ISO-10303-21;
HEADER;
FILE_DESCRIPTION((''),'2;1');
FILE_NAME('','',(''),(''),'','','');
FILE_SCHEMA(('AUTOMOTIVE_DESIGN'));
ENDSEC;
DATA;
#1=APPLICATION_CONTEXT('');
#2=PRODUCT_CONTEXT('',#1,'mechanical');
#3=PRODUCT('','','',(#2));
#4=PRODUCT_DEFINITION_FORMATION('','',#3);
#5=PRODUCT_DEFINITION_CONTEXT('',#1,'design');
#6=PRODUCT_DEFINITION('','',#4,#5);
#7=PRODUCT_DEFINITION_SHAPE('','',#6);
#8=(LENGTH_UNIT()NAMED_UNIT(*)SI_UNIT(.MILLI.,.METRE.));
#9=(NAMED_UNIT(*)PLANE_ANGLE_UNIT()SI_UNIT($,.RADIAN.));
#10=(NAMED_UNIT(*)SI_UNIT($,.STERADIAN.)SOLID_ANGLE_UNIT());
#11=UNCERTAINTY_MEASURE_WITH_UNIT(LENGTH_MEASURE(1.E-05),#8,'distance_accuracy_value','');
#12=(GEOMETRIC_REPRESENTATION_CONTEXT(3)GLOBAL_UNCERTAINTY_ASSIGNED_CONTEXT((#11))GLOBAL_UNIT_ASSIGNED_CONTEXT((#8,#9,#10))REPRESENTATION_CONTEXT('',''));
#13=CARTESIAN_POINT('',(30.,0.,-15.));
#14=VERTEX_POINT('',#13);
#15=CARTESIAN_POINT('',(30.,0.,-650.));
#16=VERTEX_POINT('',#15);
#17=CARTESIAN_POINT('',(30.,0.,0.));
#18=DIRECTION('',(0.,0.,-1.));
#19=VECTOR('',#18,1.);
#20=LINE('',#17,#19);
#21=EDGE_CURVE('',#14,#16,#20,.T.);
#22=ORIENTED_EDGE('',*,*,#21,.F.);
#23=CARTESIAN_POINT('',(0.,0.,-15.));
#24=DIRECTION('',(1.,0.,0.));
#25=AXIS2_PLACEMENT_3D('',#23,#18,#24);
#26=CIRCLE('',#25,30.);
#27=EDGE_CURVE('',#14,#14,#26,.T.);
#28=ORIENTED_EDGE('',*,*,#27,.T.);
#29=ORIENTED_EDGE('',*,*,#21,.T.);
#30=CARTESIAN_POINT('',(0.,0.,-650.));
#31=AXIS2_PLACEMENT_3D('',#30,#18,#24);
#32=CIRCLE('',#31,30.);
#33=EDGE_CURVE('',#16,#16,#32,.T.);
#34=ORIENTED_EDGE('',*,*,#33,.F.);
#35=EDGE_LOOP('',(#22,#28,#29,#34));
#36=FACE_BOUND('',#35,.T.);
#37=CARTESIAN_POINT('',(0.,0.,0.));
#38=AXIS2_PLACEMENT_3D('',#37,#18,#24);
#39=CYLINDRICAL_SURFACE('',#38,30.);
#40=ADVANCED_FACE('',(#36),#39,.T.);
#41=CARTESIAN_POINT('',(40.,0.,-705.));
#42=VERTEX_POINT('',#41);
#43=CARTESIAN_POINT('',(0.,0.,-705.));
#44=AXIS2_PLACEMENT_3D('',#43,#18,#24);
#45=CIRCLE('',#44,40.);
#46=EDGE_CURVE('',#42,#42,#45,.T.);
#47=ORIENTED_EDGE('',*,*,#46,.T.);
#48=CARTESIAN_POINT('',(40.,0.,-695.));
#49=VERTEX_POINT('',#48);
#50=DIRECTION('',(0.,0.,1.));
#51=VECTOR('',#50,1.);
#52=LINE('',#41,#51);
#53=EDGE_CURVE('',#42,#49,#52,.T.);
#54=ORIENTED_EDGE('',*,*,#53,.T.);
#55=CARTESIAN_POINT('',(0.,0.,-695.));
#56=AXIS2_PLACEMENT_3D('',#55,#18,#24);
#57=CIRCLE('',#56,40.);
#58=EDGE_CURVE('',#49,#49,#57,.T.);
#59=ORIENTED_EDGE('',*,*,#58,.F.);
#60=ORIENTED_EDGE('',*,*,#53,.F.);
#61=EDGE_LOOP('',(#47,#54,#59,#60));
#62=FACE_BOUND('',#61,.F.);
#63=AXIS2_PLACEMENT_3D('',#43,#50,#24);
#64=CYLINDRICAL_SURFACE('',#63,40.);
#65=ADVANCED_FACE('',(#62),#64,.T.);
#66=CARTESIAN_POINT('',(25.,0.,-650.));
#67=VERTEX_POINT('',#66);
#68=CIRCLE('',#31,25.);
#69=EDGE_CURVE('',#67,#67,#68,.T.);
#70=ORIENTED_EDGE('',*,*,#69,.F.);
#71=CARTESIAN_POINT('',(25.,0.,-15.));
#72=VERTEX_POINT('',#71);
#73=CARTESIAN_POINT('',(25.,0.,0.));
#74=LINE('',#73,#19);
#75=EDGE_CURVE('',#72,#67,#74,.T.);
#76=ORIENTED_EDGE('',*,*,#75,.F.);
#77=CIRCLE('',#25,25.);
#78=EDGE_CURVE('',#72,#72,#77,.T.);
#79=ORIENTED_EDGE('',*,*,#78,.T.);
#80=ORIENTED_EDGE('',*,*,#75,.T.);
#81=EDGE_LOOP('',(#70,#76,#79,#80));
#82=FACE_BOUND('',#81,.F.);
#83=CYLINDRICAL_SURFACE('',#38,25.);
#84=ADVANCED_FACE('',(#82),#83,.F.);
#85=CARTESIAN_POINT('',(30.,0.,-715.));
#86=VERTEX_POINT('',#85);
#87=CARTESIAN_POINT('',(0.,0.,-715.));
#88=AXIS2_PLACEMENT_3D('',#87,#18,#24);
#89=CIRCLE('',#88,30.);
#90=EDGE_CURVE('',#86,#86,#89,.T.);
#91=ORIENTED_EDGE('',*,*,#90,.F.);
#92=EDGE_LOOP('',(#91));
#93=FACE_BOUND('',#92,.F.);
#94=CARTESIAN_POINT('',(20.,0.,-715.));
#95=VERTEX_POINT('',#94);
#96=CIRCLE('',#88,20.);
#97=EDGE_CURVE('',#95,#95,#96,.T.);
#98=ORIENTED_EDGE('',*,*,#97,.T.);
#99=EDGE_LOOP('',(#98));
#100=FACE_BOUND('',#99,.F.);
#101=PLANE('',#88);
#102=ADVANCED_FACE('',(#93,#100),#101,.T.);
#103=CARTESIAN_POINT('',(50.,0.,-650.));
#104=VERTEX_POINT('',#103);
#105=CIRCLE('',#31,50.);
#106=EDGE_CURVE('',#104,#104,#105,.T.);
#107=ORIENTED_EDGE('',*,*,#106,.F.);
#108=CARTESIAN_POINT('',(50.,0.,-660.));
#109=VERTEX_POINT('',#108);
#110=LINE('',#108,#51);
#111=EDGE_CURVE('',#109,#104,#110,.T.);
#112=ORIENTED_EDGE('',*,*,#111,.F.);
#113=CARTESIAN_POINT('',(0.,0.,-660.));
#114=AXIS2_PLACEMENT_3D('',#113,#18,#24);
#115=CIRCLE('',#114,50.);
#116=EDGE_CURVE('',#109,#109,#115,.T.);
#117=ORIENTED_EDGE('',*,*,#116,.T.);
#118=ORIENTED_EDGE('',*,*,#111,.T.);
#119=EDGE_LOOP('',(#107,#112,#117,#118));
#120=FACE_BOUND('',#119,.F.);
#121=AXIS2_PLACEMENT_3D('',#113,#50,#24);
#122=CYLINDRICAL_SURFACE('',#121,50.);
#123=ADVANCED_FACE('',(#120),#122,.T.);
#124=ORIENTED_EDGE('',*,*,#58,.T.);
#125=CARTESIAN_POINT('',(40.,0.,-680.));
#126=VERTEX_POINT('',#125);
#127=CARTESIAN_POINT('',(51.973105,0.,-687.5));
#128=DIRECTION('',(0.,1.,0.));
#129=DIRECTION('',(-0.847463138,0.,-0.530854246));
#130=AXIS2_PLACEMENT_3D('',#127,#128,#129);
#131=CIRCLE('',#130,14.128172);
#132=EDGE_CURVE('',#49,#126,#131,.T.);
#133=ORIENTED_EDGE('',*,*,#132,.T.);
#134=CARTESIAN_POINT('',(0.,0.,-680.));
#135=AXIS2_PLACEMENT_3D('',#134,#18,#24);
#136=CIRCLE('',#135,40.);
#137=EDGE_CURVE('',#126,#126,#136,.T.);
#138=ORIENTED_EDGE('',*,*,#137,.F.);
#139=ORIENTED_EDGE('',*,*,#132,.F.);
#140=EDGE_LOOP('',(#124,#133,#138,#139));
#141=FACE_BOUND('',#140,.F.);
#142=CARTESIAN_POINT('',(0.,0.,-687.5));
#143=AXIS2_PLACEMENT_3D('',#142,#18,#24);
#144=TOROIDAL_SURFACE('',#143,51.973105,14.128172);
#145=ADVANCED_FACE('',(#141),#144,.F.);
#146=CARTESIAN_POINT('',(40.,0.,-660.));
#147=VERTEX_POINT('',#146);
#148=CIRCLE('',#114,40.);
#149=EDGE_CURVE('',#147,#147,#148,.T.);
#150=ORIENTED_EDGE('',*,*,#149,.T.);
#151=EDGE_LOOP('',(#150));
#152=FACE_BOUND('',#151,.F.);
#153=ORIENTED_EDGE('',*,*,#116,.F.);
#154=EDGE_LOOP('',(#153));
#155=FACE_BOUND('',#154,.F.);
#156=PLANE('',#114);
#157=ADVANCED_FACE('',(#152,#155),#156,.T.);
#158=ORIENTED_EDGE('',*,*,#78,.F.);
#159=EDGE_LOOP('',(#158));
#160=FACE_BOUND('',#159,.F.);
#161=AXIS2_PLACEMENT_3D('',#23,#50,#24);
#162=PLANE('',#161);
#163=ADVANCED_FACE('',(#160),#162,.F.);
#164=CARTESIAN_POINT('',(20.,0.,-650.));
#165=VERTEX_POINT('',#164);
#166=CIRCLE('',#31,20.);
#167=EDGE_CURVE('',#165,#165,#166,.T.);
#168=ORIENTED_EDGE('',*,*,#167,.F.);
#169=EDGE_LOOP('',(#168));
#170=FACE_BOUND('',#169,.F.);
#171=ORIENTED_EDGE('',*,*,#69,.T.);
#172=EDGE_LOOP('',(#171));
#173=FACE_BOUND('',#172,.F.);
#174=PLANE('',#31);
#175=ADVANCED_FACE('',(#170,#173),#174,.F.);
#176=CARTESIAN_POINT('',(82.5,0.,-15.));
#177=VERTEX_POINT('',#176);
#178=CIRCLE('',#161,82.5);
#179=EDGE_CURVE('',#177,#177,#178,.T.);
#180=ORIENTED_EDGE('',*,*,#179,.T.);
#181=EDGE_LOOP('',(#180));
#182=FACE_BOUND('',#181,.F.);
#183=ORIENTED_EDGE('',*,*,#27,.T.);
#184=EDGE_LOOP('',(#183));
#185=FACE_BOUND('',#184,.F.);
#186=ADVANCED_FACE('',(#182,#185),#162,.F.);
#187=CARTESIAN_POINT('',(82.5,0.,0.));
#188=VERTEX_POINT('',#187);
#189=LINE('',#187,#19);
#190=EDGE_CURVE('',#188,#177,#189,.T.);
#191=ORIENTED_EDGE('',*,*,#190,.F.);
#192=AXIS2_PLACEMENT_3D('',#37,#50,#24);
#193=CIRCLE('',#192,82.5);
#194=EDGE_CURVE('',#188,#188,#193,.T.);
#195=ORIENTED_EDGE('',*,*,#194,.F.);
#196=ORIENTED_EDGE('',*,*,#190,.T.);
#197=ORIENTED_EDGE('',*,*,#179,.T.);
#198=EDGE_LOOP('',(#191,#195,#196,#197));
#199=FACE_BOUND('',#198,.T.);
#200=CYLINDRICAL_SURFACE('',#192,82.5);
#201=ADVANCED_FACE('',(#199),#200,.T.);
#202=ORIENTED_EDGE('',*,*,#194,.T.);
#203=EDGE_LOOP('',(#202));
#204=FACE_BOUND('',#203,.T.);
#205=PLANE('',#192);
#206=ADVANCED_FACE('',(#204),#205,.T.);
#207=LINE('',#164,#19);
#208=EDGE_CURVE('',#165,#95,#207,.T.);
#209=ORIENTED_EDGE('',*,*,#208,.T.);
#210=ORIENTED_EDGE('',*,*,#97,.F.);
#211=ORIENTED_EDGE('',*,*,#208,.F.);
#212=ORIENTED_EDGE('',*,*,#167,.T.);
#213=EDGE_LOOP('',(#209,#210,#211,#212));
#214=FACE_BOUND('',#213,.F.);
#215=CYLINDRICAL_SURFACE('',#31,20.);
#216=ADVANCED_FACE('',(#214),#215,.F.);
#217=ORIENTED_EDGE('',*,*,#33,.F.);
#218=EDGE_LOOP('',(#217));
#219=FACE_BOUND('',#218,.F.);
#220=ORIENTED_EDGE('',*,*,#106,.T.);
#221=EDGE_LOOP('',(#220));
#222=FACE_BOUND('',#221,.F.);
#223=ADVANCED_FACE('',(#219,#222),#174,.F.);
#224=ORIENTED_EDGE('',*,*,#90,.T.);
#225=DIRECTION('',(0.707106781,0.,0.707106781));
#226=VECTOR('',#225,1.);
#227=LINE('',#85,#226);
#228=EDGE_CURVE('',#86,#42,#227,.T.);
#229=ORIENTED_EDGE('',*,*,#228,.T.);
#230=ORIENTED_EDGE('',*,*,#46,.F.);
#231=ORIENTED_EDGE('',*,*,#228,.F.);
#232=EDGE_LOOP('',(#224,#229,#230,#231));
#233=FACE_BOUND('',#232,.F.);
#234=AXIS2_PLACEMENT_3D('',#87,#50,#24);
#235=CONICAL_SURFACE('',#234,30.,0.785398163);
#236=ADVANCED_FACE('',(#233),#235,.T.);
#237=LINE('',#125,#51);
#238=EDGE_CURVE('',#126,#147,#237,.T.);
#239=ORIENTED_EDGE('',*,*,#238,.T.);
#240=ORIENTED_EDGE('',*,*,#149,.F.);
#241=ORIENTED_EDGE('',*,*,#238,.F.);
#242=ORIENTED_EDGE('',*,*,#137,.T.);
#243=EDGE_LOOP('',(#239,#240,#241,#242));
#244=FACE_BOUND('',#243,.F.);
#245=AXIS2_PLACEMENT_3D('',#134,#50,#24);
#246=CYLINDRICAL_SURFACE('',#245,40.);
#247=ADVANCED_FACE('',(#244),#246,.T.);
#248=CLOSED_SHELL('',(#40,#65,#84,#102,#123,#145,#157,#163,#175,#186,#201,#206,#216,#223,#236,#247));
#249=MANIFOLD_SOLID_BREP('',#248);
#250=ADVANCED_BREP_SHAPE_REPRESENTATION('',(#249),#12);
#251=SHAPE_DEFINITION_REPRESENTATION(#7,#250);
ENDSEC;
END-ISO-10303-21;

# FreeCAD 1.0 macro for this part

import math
import FreeCAD as App
import Part
import Sketcher

V = App.Vector
Q = App.Units.Quantity

doc = App.newDocument("Part")
body = doc.addObject("PartDesign::Body", "Body")

sketch1 = body.newObject("Sketcher::SketchObject", "Sketch")
sketch1.AttachmentSupport = (doc.getObject("XY_Plane"), [""])
sketch1.MapMode = "FlatFace"
sketch1.addGeometry([
    Part.Circle(V(0, 0, 0), V(0, 0, 1), 30),
    Part.Circle(V(0, 0, 0), V(0, 0, 1), 25),
], False)
sketch1.addConstraint([
    Sketcher.Constraint("Coincident", 0, 3, -1, 1),
    Sketcher.Constraint("Coincident", 1, 3, -1, 1),
    Sketcher.Constraint("Diameter", 0, 60.0),
    Sketcher.Constraint("Diameter", 1, 50.0),
])

sketch2 = body.newObject("Sketcher::SketchObject", "Sketch001")
sketch2.AttachmentSupport = (doc.getObject("XZ_Plane"), [""])
sketch2.MapMode = "FlatFace"
sketch2.addGeometry(Part.LineSegment(V(0, 0, 0), V(0, -650, 0)), False)
sketch2.addConstraint([
    Sketcher.Constraint("Vertical", 0),
    Sketcher.Constraint("Coincident", 0, 1, -1, 1),
    Sketcher.Constraint("DistanceY", 0, 2, 0, 1, 650.0),
])
doc.recompute()

additivepipe = body.newObject("PartDesign::AdditivePipe", "AdditivePipe")
additivepipe.Profile = sketch1
additivepipe.Spine = (sketch2, ["Edge1"])

sketch3 = body.newObject("Sketcher::SketchObject", "Sketch002")
sketch3.AttachmentSupport = (doc.getObject("XY_Plane"), [""])
sketch3.MapMode = "FlatFace"
sketch3.addGeometry(Part.Circle(V(0, 0, 0), V(0, 0, 1), 82), False)
sketch3.addConstraint([
    Sketcher.Constraint("Coincident", 0, 3, -1, 1),
    Sketcher.Constraint("Diameter", 0, 165.0),
])
pad1 = body.newObject("PartDesign::Pad", "Pad")
pad1.Profile = sketch3
pad1.Length = 15
pad1.Reversed = True

sketch4 = body.newObject("Sketcher::SketchObject", "Sketch003")
sketch4.AttachmentSupport = (doc.getObject("XZ_Plane"), [""])
sketch4.MapMode = "FlatFace"
sketch4.addGeometry([
    Part.LineSegment(V(50, -650, 0), V(20, -650, 0)),
    Part.LineSegment(V(20, -650, 0), V(20, -715, 0)),
    Part.LineSegment(V(20, -715, 0), V(30, -715, 0)),
    Part.LineSegment(V(30, -715, 0), V(40, -705, 0)),
    Part.LineSegment(V(40, -705, 0), V(40, -695, 0)),
    Part.ArcOfCircle(Part.Circle(V(52, -688, 0), V(0, 0, 1), 14), math.radians(148), math.radians(212)),
    Part.LineSegment(V(40, -680, 0), V(40, -660, 0)),
    Part.LineSegment(V(40, -660, 0), V(50, -660, 0)),
    Part.LineSegment(V(50, -660, 0), V(50, -650, 0)),
], False)
sketch4.addConstraint([
    Sketcher.Constraint("Coincident", 0, 2, 1, 1),
    Sketcher.Constraint("Coincident", 1, 2, 2, 1),
    Sketcher.Constraint("Coincident", 2, 2, 3, 1),
    Sketcher.Constraint("Coincident", 3, 2, 4, 1),
    Sketcher.Constraint("Coincident", 4, 2, 5, 2),
    Sketcher.Constraint("Coincident", 5, 1, 6, 1),
    Sketcher.Constraint("Coincident", 6, 2, 7, 1),
    Sketcher.Constraint("Coincident", 7, 2, 8, 1),
    Sketcher.Constraint("Coincident", 8, 2, 0, 1),
    Sketcher.Constraint("Horizontal", 0),
    Sketcher.Constraint("Vertical", 1),
    Sketcher.Constraint("Horizontal", 2),
    Sketcher.Constraint("Vertical", 4),
    Sketcher.Constraint("Vertical", 6),
    Sketcher.Constraint("Horizontal", 7),
    Sketcher.Constraint("Vertical", 8),
    Sketcher.Constraint("Vertical", 4, 2, 5, 1),
    Sketcher.Constraint("Equal", 2, 7),
    Sketcher.Constraint("Equal", 7, 4),
    Sketcher.Constraint("Equal", 4, 8),
    Sketcher.Constraint("DistanceX", 0, 2, 0, 1, 30.0),
    Sketcher.Constraint("DistanceX", 2, 1, 2, 2, 10.0),
    Sketcher.Constraint("DistanceY", 1, 2, 1, 1, 65.0),
    Sketcher.Constraint("DistanceY", 6, 1, 6, 2, 20.0),
    Sketcher.Constraint("Angle", 3, Q("45 deg")),
    Sketcher.Constraint("DistanceX", -1, 1, 0, 2, 20.0),
    Sketcher.Constraint("DistanceY", 0, 2, -1, 1, 650.0),
    Sketcher.Constraint("Radius", 5, 14.128172),
])
revolution = body.newObject("PartDesign::Revolution", "Revolution")
revolution.Profile = sketch4
revolution.ReferenceAxis = (sketch4, ["V_Axis"])
revolution.Angle = 360

doc.recompute()
